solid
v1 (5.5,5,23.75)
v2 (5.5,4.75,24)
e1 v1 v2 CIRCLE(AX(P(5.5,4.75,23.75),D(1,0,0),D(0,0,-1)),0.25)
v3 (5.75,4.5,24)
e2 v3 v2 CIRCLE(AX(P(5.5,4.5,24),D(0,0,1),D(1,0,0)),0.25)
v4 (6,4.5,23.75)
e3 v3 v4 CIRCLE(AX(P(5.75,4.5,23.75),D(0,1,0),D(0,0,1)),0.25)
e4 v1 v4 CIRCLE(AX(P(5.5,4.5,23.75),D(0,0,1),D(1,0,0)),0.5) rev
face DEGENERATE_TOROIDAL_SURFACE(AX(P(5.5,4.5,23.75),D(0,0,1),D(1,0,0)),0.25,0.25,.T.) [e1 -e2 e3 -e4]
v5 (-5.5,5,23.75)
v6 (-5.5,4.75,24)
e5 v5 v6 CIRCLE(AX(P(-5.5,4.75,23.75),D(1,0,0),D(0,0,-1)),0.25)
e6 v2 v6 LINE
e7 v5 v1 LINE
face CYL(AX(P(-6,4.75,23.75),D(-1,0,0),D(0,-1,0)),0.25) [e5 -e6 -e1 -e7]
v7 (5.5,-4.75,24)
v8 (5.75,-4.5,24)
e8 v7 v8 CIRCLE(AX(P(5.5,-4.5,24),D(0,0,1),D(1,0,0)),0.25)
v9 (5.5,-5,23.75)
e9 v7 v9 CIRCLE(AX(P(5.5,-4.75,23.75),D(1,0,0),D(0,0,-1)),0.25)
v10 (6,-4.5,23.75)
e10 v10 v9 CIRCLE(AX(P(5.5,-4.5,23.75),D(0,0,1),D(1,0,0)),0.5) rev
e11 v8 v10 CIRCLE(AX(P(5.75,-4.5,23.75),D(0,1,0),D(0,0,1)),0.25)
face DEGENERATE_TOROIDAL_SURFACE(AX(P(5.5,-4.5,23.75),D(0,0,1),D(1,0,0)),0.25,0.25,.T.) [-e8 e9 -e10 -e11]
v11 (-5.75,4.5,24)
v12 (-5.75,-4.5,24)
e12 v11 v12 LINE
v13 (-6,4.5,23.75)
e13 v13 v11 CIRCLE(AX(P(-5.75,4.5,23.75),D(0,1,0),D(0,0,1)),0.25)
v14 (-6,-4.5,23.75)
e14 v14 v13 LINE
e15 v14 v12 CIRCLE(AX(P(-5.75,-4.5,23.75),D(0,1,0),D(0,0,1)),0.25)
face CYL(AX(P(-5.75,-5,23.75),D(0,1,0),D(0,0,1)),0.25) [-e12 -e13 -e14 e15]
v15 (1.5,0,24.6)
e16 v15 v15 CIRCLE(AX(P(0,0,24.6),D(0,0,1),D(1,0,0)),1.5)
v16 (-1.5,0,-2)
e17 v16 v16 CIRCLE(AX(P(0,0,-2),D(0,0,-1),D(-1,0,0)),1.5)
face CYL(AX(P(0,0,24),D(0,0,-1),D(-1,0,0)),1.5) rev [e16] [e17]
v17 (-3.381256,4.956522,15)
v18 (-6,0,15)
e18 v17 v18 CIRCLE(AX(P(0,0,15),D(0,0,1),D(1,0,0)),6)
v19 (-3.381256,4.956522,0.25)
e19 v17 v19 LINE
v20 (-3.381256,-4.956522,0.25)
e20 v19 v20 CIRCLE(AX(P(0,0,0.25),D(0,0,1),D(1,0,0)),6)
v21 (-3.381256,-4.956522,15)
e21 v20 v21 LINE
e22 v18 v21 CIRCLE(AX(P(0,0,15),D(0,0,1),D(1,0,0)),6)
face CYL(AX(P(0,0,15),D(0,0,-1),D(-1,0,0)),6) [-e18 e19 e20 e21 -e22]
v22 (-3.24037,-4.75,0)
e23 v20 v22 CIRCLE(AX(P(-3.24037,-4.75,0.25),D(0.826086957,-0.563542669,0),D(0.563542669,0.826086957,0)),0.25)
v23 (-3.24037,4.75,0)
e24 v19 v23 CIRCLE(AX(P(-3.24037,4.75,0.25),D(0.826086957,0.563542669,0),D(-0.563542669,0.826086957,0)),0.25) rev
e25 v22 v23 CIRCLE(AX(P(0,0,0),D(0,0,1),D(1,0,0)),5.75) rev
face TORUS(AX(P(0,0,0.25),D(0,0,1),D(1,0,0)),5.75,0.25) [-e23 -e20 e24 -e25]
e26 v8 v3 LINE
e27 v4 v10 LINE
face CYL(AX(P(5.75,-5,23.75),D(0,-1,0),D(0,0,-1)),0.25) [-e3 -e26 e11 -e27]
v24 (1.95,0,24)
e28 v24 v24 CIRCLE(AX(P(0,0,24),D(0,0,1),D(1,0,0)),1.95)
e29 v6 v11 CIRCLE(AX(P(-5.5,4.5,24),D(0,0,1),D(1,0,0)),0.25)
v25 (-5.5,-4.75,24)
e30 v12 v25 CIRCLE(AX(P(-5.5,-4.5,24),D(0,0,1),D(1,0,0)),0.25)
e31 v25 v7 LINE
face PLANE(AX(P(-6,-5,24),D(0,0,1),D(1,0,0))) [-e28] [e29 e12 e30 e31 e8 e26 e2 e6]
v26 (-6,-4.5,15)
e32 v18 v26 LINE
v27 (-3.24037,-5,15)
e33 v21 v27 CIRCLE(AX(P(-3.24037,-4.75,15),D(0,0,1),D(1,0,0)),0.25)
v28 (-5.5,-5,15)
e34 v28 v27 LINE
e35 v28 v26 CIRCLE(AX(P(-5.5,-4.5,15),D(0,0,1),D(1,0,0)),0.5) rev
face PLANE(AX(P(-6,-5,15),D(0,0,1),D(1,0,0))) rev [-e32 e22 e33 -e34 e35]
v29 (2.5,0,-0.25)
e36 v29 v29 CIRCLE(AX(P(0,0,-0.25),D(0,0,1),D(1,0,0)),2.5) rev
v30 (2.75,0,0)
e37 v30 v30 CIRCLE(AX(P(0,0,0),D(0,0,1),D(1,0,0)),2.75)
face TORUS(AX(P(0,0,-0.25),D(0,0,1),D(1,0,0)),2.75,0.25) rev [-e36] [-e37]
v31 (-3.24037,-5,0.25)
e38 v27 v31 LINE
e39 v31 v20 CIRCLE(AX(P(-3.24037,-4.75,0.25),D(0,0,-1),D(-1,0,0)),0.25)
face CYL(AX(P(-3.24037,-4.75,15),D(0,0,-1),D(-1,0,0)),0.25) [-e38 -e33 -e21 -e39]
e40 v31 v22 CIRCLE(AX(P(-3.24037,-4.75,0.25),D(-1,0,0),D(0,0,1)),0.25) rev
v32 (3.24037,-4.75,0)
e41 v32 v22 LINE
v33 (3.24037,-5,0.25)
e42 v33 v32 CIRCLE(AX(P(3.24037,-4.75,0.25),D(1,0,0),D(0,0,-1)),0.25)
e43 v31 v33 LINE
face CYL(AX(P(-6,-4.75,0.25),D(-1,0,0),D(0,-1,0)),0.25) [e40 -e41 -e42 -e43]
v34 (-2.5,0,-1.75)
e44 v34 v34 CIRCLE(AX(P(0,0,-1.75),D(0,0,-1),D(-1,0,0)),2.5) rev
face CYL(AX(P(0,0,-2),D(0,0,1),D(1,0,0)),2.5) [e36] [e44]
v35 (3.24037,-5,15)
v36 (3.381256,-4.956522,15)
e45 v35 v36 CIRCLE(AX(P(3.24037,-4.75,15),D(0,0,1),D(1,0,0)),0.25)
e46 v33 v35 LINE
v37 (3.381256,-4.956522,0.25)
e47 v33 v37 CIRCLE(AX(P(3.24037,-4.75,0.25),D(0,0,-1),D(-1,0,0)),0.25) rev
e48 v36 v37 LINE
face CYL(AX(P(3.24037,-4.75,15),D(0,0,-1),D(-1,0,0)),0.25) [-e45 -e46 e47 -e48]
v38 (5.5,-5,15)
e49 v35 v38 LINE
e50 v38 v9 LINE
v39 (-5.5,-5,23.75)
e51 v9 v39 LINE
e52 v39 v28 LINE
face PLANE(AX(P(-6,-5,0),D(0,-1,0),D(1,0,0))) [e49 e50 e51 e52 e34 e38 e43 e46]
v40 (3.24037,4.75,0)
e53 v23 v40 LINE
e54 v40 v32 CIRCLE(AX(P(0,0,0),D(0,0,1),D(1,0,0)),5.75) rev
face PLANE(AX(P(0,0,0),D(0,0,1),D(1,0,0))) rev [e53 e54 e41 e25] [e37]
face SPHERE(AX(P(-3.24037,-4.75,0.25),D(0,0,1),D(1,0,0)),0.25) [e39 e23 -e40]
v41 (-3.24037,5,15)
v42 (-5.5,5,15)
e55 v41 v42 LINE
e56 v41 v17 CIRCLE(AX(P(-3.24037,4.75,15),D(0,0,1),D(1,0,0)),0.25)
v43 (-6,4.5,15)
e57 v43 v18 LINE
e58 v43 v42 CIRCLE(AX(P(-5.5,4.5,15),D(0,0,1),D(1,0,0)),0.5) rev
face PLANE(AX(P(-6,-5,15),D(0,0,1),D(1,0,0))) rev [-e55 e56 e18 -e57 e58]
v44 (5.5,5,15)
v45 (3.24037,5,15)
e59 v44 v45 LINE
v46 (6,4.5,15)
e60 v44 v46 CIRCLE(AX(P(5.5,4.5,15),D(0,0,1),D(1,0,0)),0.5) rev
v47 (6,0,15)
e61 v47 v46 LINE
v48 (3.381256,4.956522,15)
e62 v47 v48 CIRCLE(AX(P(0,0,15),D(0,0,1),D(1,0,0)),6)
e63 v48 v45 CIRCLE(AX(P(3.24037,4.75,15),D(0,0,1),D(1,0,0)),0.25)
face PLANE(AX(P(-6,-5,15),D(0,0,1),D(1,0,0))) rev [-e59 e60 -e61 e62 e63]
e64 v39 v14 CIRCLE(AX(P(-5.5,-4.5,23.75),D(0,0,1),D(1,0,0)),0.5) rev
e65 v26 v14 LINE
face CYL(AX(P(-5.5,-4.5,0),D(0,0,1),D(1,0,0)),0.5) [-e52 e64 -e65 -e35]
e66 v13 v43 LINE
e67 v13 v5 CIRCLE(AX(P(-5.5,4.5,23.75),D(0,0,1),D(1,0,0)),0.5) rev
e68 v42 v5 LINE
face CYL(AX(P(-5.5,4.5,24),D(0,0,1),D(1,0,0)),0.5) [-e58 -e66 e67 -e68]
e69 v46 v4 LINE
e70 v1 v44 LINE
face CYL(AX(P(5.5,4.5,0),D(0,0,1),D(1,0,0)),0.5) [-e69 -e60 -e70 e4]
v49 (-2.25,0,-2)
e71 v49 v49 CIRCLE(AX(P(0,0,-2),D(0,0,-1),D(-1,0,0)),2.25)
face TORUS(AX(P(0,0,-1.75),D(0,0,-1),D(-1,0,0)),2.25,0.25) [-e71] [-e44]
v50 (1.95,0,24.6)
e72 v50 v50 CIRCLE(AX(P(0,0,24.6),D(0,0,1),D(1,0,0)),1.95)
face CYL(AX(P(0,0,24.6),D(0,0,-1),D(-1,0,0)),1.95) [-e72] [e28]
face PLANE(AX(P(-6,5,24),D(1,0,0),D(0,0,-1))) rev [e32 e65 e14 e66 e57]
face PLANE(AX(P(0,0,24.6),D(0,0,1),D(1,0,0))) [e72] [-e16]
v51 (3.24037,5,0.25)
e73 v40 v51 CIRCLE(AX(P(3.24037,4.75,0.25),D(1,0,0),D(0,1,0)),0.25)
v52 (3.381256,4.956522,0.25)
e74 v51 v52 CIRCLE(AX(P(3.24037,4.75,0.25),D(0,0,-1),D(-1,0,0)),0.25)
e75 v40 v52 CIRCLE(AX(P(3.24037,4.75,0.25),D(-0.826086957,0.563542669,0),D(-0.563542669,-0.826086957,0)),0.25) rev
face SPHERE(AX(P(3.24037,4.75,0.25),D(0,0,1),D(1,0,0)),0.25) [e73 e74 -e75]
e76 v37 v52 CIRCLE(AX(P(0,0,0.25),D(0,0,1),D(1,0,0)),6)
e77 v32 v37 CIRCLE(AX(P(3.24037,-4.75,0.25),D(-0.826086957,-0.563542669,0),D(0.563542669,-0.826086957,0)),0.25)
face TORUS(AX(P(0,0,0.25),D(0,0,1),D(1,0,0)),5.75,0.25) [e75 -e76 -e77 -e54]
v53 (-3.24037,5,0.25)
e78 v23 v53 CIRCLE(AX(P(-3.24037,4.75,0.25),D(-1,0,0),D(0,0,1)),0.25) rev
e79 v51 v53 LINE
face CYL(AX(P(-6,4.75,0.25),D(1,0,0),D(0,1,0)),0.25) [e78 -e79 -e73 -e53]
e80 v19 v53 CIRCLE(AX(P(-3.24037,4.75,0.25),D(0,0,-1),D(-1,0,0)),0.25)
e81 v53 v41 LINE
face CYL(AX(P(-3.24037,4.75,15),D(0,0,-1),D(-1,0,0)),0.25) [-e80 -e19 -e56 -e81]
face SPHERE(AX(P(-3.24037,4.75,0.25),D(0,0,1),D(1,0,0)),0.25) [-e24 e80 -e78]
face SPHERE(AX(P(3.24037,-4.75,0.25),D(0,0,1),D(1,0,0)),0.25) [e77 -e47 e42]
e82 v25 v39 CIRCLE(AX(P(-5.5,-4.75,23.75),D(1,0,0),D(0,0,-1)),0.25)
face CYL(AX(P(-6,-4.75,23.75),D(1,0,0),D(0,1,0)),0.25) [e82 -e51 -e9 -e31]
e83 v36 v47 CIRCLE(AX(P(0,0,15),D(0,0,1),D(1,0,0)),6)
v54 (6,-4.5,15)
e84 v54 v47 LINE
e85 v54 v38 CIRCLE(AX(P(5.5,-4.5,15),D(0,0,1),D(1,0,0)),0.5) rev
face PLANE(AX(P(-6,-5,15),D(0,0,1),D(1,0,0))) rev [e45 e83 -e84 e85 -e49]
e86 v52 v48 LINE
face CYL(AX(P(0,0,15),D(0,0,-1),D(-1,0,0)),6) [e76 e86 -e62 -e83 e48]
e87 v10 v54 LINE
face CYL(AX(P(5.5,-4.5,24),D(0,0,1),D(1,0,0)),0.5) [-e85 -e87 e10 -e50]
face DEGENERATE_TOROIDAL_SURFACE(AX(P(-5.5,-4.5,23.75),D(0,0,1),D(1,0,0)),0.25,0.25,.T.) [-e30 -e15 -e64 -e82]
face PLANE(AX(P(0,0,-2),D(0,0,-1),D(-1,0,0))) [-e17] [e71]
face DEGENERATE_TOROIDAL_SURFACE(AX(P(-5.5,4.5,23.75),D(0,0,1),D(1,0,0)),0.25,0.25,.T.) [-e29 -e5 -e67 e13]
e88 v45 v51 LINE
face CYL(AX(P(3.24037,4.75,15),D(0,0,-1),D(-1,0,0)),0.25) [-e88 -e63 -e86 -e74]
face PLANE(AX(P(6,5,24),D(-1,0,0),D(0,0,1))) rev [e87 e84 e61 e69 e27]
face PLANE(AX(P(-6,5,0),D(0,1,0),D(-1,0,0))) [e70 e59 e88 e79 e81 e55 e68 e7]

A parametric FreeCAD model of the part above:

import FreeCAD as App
import Part
import Sketcher

V = App.Vector


def edges_at(feature, points):
    """Names of the edges that pass closest to the given points."""
    edges = feature.Shape.Edges
    near = lambda p: min(range(len(edges)), key=lambda i: edges[i].distToShape(Part.Vertex(*p))[0])
    return sorted({f"Edge{near(p) + 1}" for p in points})


def add_polygon(sketch, points):
    """Adds a closed chain of lines whose ends are joined by coincident constraints."""
    first, n = sketch.GeometryCount, len(points)
    for a, b in zip(points, points[1:] + points[:1]):
        sketch.addGeometry(Part.LineSegment(App.Vector(*a, 0), App.Vector(*b, 0)), False)
    for i in range(n):
        sketch.addConstraint(Sketcher.Constraint("Coincident", first + i, 2, first + (i + 1) % n, 1))

doc = App.newDocument("Part")
body = doc.addObject("PartDesign::Body", "Body")

sketch1 = doc.addObject("Sketcher::SketchObject", "Sketch")
body.addObject(sketch1)
sketch1.AttachmentSupport = (doc.XY_Plane, [""])
sketch1.MapMode = "FlatFace"
sketch1.addGeometry(Part.Circle(V(0, 0, 0), V(0, 0, 1), 6), False)
sketch1.addConstraint(Sketcher.Constraint("Coincident", 0, 3, -1, 1))
sketch1.addConstraint(Sketcher.Constraint("Diameter", 0, 12.0))
pad1 = doc.addObject("PartDesign::Pad", "Pad")
body.addObject(pad1)
pad1.Profile = sketch1
pad1.Length = 15

sketch2 = doc.addObject("Sketcher::SketchObject", "Sketch001")
body.addObject(sketch2)
sketch2.AttachmentSupport = (doc.XY_Plane, [""])
sketch2.MapMode = "FlatFace"
sketch2.AttachmentOffset = App.Placement(V(0, 0, 15), App.Rotation())
add_polygon(sketch2, [(-9, 9), (-9, -9), (9, -9), (9, 9)])
add_polygon(sketch2, [(6, -5), (-6, -5), (-6, 5), (6, 5)])
sketch2.addConstraint(Sketcher.Constraint("Vertical", 0))
sketch2.addConstraint(Sketcher.Constraint("Horizontal", 1))
sketch2.addConstraint(Sketcher.Constraint("Vertical", 2))
sketch2.addConstraint(Sketcher.Constraint("Horizontal", 3))
sketch2.addConstraint(Sketcher.Constraint("Horizontal", 4))
sketch2.addConstraint(Sketcher.Constraint("Vertical", 5))
sketch2.addConstraint(Sketcher.Constraint("Horizontal", 6))
sketch2.addConstraint(Sketcher.Constraint("Vertical", 7))
sketch2.addConstraint(Sketcher.Constraint("Symmetric", 0, 2, 2, 2, -1, 1))
sketch2.addConstraint(Sketcher.Constraint("Symmetric", 4, 2, 6, 2, -1, 1))
sketch2.addConstraint(Sketcher.Constraint("Equal", 3, 0))
sketch2.addConstraint(Sketcher.Constraint("DistanceX", 4, 2, 4, 1, 12.0))
sketch2.addConstraint(Sketcher.Constraint("DistanceY", 5, 1, 5, 2, 10.0))
sketch2.addConstraint(Sketcher.Constraint("DistanceX", 1, 1, 1, 2, 18.53))
pocket1 = doc.addObject("PartDesign::Pocket", "Pocket")
body.addObject(pocket1)
pocket1.Profile = sketch2
pocket1.Length = 15

sketch3 = doc.addObject("Sketcher::SketchObject", "Sketch002")
body.addObject(sketch3)
sketch3.AttachmentSupport = (doc.XY_Plane, [""])
sketch3.MapMode = "FlatFace"
sketch3.AttachmentOffset = App.Placement(V(0, 0, 15), App.Rotation())
add_polygon(sketch3, [(-6, 5), (-6, -5), (6, -5), (6, 5)])
sketch3.addConstraint(Sketcher.Constraint("Vertical", 0))
sketch3.addConstraint(Sketcher.Constraint("Horizontal", 1))
sketch3.addConstraint(Sketcher.Constraint("Vertical", 2))
sketch3.addConstraint(Sketcher.Constraint("Horizontal", 3))
sketch3.addConstraint(Sketcher.Constraint("Symmetric", 0, 2, 2, 2, -1, 1))
sketch3.addConstraint(Sketcher.Constraint("DistanceX", 1, 1, 1, 2, 12.0))
sketch3.addConstraint(Sketcher.Constraint("DistanceY", 0, 2, 0, 1, 10.0))
pad2 = doc.addObject("PartDesign::Pad", "Pad001")
body.addObject(pad2)
pad2.Profile = sketch3
pad2.Length = 9
doc.recompute()

fillet = doc.addObject("PartDesign::Fillet", "Fillet")
body.addObject(fillet)
fillet.Base = (pad2, edges_at(pad2, [
    (6, 5, 19.5),
    (-6, 5, 19.5),
    (-6, -5, 19.5),
    (6, -5, 19.5),
]))
fillet.Radius = 0.5

sketch4 = doc.addObject("Sketcher::SketchObject", "Sketch003")
body.addObject(sketch4)
sketch4.AttachmentSupport = (doc.XY_Plane, [""])
sketch4.MapMode = "FlatFace"
sketch4.addGeometry(Part.Circle(V(0, 0, 0), V(0, 0, 1), 2.5), False)
sketch4.addConstraint(Sketcher.Constraint("Coincident", 0, 3, -1, 1))
sketch4.addConstraint(Sketcher.Constraint("Diameter", 0, 5.0))
pad3 = doc.addObject("PartDesign::Pad", "Pad002")
body.addObject(pad3)
pad3.Profile = sketch4
pad3.Length = 2
pad3.Reversed = True

sketch5 = doc.addObject("Sketcher::SketchObject", "Sketch004")
body.addObject(sketch5)
sketch5.AttachmentSupport = (doc.XY_Plane, [""])
sketch5.MapMode = "FlatFace"
sketch5.AttachmentOffset = App.Placement(V(0, 0, -2), App.Rotation())
sketch5.addGeometry(Part.Circle(V(0, 0, 0), V(0, 0, 1), 1.5), False)
sketch5.addConstraint(Sketcher.Constraint("Coincident", 0, 3, -1, 1))
sketch5.addConstraint(Sketcher.Constraint("Diameter", 0, 3.0))
pocket2 = doc.addObject("PartDesign::Pocket", "Pocket001")
body.addObject(pocket2)
pocket2.Profile = sketch5
pocket2.Type = "ThroughAll"
pocket2.Reversed = True
doc.recompute()

fillet2 = doc.addObject("PartDesign::Fillet", "Fillet001")
body.addObject(fillet2)
fillet2.Base = (pocket2, edges_at(pocket2, [
    (0, 5, 24),
    (6, 0, 24),
    (-6, 0, 24),
    (0, -5, 24),
    (5.854, -4.854, 24),
    (-5.854, -4.854, 24),
    (-5.854, 4.854, 24),
    (5.854, 4.854, 24),
]))
fillet2.Radius = 0.25
doc.recompute()

fillet3 = doc.addObject("PartDesign::Fillet", "Fillet002")
body.addObject(fillet3)
fillet3.Base = (fillet2, edges_at(fillet2, [
    (-2.5, 0, -2),
    (-2.5, 0, 0),
    (-3.317, -5, 7.5),
    (3.317, -5, 7.5),
    (3.317, 5, 7.5),
    (-3.317, 5, 7.5),
    (6, 0, 0),
    (-6, 0, 0),
    (0, -5, 0),
    (0, 5, 0),
]))
fillet3.Radius = 0.25

sketch6 = doc.addObject("Sketcher::SketchObject", "Sketch005")
body.addObject(sketch6)
sketch6.AttachmentSupport = (doc.XY_Plane, [""])
sketch6.MapMode = "FlatFace"
sketch6.AttachmentOffset = App.Placement(V(0, 0, 24), App.Rotation())
sketch6.addGeometry(Part.Circle(V(0, 0, 0), V(0, 0, 1), 1.9), False)
sketch6.addGeometry(Part.Circle(V(0, 0, 0), V(0, 0, 1), 1.5), False)
sketch6.addConstraint(Sketcher.Constraint("Coincident", 0, 3, -1, 1))
sketch6.addConstraint(Sketcher.Constraint("Coincident", 1, 3, -1, 1))
sketch6.addConstraint(Sketcher.Constraint("Diameter", 1, 3.0))
sketch6.addConstraint(Sketcher.Constraint("Diameter", 0, 3.9))
pad4 = doc.addObject("PartDesign::Pad", "Pad003")
body.addObject(pad4)
pad4.Profile = sketch6
pad4.Length = 0.6

doc.recompute()
